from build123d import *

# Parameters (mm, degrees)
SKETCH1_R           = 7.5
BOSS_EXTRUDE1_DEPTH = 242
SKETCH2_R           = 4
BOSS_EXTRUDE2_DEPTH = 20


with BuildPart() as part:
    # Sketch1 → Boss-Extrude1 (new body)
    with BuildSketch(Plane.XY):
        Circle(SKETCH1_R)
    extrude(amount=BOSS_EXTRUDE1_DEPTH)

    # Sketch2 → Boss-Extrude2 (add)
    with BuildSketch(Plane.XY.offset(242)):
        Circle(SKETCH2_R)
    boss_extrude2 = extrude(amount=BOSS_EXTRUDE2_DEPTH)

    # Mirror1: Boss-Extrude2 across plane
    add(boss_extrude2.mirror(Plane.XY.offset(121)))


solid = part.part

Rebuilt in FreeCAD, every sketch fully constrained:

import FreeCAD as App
import Part
import Sketcher

doc = App.newDocument("Part")
body = doc.addObject("PartDesign::Body", "Body")

sketch1 = body.newObject("Sketcher::SketchObject", "Sketch")
sketch1.AttachmentSupport = (doc.getObject("XY_Plane"), [""])
sketch1.MapMode = "FlatFace"
sketch1.addGeometry(Part.Circle(App.Vector(0, 0, 0), App.Vector(0, 0, 1), 7.5), False)
sketch1.addConstraint(Sketcher.Constraint("Coincident", 0, 3, -1, 1))
sketch1.addConstraint(Sketcher.Constraint("Diameter", 0, 15.0))
pad1 = body.newObject("PartDesign::Pad", "Pad")
pad1.Profile = sketch1
pad1.Length = 242

sketch2 = body.newObject("Sketcher::SketchObject", "Sketch001")
sketch2.AttachmentSupport = (doc.getObject("XY_Plane"), [""])
sketch2.MapMode = "FlatFace"
sketch2.AttachmentOffset = App.Placement(App.Vector(0, 0, 242), App.Rotation())
sketch2.addGeometry(Part.Circle(App.Vector(0, 0, 0), App.Vector(0, 0, 1), 4), False)
sketch2.addConstraint(Sketcher.Constraint("Coincident", 0, 3, -1, 1))
sketch2.addConstraint(Sketcher.Constraint("Diameter", 0, 8.0))
pad2 = body.newObject("PartDesign::Pad", "Pad001")
pad2.Profile = sketch2
pad2.Length = 20
doc.recompute()

datumplane = body.newObject("PartDesign::Plane", "DatumPlane")
datumplane.AttachmentSupport = (doc.getObject("XY_Plane"), [""])
datumplane.MapMode = "FlatFace"
datumplane.AttachmentOffset = App.Placement(App.Vector(0, 0, 121), App.Rotation())
mirrored = body.newObject("PartDesign::Mirrored", "Mirrored")
mirrored.Originals = [pad2]
mirrored.MirrorPlane = (datumplane, [""])
body.Tip = mirrored

doc.recompute()
